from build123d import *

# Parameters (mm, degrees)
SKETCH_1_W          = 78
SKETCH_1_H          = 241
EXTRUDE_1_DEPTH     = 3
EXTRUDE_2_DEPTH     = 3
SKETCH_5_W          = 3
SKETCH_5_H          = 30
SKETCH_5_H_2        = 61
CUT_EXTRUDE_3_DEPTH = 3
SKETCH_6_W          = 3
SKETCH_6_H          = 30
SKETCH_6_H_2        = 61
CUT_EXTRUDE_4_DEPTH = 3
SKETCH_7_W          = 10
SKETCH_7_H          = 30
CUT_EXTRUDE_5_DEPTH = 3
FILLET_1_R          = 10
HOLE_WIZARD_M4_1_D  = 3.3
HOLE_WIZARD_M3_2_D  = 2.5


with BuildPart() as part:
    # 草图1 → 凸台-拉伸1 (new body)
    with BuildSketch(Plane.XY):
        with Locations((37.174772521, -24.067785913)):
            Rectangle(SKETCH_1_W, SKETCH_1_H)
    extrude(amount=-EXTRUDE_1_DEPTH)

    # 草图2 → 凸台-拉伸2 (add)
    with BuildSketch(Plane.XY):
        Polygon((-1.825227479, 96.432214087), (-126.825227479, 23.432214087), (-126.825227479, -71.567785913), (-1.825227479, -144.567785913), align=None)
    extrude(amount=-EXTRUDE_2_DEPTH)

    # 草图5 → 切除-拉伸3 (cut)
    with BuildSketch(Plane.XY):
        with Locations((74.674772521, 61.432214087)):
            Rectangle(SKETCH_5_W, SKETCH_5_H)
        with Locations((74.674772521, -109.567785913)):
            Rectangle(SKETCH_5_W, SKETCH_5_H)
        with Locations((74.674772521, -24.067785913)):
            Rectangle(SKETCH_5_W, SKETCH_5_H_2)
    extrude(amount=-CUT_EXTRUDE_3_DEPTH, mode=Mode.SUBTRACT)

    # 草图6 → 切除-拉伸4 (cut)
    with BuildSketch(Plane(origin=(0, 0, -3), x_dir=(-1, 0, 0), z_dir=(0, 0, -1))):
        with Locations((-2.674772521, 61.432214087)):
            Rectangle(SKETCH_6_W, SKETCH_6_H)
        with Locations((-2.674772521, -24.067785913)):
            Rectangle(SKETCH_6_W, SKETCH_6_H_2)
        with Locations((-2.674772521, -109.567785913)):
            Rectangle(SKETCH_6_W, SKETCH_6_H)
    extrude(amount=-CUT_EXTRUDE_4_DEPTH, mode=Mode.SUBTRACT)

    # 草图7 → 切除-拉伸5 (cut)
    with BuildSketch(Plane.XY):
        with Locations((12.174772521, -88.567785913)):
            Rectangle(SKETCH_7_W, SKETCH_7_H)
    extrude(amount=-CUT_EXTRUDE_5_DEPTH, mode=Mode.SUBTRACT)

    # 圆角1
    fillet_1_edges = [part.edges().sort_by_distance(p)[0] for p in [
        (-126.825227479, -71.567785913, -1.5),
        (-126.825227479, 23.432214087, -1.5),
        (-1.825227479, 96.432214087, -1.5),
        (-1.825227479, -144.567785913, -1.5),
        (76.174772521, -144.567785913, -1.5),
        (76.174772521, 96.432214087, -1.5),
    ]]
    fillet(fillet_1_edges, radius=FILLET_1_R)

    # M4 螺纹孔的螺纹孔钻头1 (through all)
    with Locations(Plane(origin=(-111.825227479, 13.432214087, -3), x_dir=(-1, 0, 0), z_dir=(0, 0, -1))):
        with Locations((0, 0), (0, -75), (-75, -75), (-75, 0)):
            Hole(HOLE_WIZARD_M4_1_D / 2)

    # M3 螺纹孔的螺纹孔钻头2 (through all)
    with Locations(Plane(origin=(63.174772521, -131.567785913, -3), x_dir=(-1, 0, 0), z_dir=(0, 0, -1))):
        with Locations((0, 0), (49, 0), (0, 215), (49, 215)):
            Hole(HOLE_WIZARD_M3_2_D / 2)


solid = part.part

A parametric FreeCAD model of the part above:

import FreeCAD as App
import Part
import Sketcher

V = App.Vector
Q = App.Units.Quantity


def edges_at(feature, points):
    """Names of the edges that pass closest to the given points."""
    edges = feature.Shape.Edges
    near = lambda p: min(range(len(edges)), key=lambda i: edges[i].distToShape(Part.Vertex(*p))[0])
    return sorted({f"Edge{near(p) + 1}" for p in points})


def add_polygon(sketch, points):
    """Adds a closed chain of lines whose ends are joined by coincident constraints."""
    first, n = sketch.GeometryCount, len(points)
    for a, b in zip(points, points[1:] + points[:1]):
        sketch.addGeometry(Part.LineSegment(App.Vector(*a, 0), App.Vector(*b, 0)), False)
    for i in range(n):
        sketch.addConstraint(Sketcher.Constraint("Coincident", first + i, 2, first + (i + 1) % n, 1))

doc = App.newDocument("Part")
body = doc.addObject("PartDesign::Body", "Body")

# Sketch on XY plane
sketch1 = body.newObject("Sketcher::SketchObject", "Sketch")
sketch1.AttachmentSupport = (doc.getObject("XY_Plane"), [""])
sketch1.MapMode = "FlatFace"
add_polygon(sketch1, [(-2, 96), (-2, -145), (76, -145), (76, 96)])  # lines 0-3
sketch1.addConstraint([
    Sketcher.Constraint("Vertical", 0),
    Sketcher.Constraint("Horizontal", 1),
    Sketcher.Constraint("Vertical", 2),
    Sketcher.Constraint("Horizontal", 3),
    Sketcher.Constraint("DistanceX", 1, 1, 1, 2, Q("78 mm")),
    Sketcher.Constraint("DistanceY", 0, 2, 0, 1, Q("241 mm")),
    Sketcher.Constraint("DistanceX", 0, 2, -1, 1, Q("1.825227 mm")),
    Sketcher.Constraint("DistanceY", 0, 2, -1, 1, Q("144.567786 mm")),
])
pad1 = body.newObject("PartDesign::Pad", "Pad")
pad1.Profile = sketch1
pad1.Length = 3
pad1.Reversed = True

# Sketch on XY plane
sketch2 = body.newObject("Sketcher::SketchObject", "Sketch001")
sketch2.AttachmentSupport = (doc.getObject("XY_Plane"), [""])
sketch2.MapMode = "FlatFace"
add_polygon(sketch2, [(-2, 96), (-127, 23), (-127, -72), (-2, -145)])  # lines 0-3
sketch2.addConstraint([
    Sketcher.Constraint("Vertical", 1),
    Sketcher.Constraint("Vertical", 3),
    Sketcher.Constraint("Equal", 0, 2),
    Sketcher.Constraint("DistanceY", 1, 2, 1, 1, Q("95 mm")),
    Sketcher.Constraint("DistanceY", 3, 1, 3, 2, Q("241 mm")),
    Sketcher.Constraint("DistanceX", 1, 2, 2, 2, Q("125 mm")),
    Sketcher.Constraint("DistanceX", 0, 2, -1, 1, Q("126.825227 mm")),
    Sketcher.Constraint("DistanceY", -1, 1, 0, 2, Q("23.432214 mm")),
])
pad2 = body.newObject("PartDesign::Pad", "Pad001")
pad2.Profile = sketch2
pad2.Length = 3
pad2.Reversed = True

# Sketch on XY plane
sketch3 = body.newObject("Sketcher::SketchObject", "Sketch002")
sketch3.AttachmentSupport = (doc.getObject("XY_Plane"), [""])
sketch3.MapMode = "FlatFace"
add_polygon(sketch3, [(73.2, 76.4), (73.2, 46.4), (76.2, 46.4), (76.2, 76.4)])  # lines 0-3
add_polygon(sketch3, [(73.2, -94.6), (73.2, -124.6), (76.2, -124.6), (76.2, -94.6)])  # lines 4-7
add_polygon(sketch3, [(73.2, 6.4), (73.2, -54.6), (76.2, -54.6), (76.2, 6.4)])  # lines 8-11
sketch3.addConstraint([
    Sketcher.Constraint("Vertical", 0),
    Sketcher.Constraint("Horizontal", 1),
    Sketcher.Constraint("Vertical", 2),
    Sketcher.Constraint("Horizontal", 3),
    Sketcher.Constraint("Vertical", 4),
    Sketcher.Constraint("Horizontal", 5),
    Sketcher.Constraint("Vertical", 6),
    Sketcher.Constraint("Horizontal", 7),
    Sketcher.Constraint("Vertical", 8),
    Sketcher.Constraint("Horizontal", 9),
    Sketcher.Constraint("Vertical", 10),
    Sketcher.Constraint("Horizontal", 11),
    Sketcher.Constraint("Vertical", 3, 2, 4, 2),
    Sketcher.Constraint("Vertical", 2, 2, 5, 2),
    Sketcher.Constraint("Vertical", 7, 2, 8, 2),
    Sketcher.Constraint("Vertical", 6, 2, 9, 2),
    Sketcher.Constraint("Equal", 2, 4),
    Sketcher.Constraint("DistanceX", 1, 1, 1, 2, Q("3 mm")),
    Sketcher.Constraint("DistanceY", 0, 2, 0, 1, Q("30 mm")),
    Sketcher.Constraint("DistanceY", 8, 2, 8, 1, Q("61 mm")),
    Sketcher.Constraint("DistanceY", 4, 2, 0, 2, Q("171 mm")),
    Sketcher.Constraint("DistanceY", 7, 2, 8, 2, Q("40 mm")),
    Sketcher.Constraint("DistanceX", -1, 1, 0, 2, Q("73.174773 mm")),
    Sketcher.Constraint("DistanceY", -1, 1, 0, 2, Q("46.432214 mm")),
])
pocket1 = body.newObject("PartDesign::Pocket", "Pocket")
pocket1.Profile = sketch3
pocket1.Length = 3

# Sketch on XY plane
sketch4 = body.newObject("Sketcher::SketchObject", "Sketch003")
sketch4.AttachmentSupport = (doc.getObject("XY_Plane"), [""])
sketch4.MapMode = "FlatFace"
sketch4.AttachmentOffset = App.Placement(V(0, 0, -3), App.Rotation())
add_polygon(sketch4, [(4.2, 76.4), (4.2, 46.4), (1.2, 46.4), (1.2, 76.4)])  # lines 0-3
add_polygon(sketch4, [(4.2, 6.4), (4.2, -54.6), (1.2, -54.6), (1.2, 6.4)])  # lines 4-7
add_polygon(sketch4, [(4.2, -94.6), (4.2, -124.6), (1.2, -124.6), (1.2, -94.6)])  # lines 8-11
sketch4.addConstraint([
    Sketcher.Constraint("Vertical", 0),
    Sketcher.Constraint("Horizontal", 1),
    Sketcher.Constraint("Vertical", 2),
    Sketcher.Constraint("Horizontal", 3),
    Sketcher.Constraint("Vertical", 4),
    Sketcher.Constraint("Horizontal", 5),
    Sketcher.Constraint("Vertical", 6),
    Sketcher.Constraint("Horizontal", 7),
    Sketcher.Constraint("Vertical", 8),
    Sketcher.Constraint("Horizontal", 9),
    Sketcher.Constraint("Vertical", 10),
    Sketcher.Constraint("Horizontal", 11),
    Sketcher.Constraint("Vertical", 3, 2, 4, 2),
    Sketcher.Constraint("Vertical", 2, 2, 5, 2),
    Sketcher.Constraint("Vertical", 7, 2, 8, 2),
    Sketcher.Constraint("Vertical", 6, 2, 9, 2),
    Sketcher.Constraint("Equal", 2, 8),
    Sketcher.Constraint("DistanceX", 1, 2, 1, 1, Q("3 mm")),
    Sketcher.Constraint("DistanceY", 0, 2, 0, 1, Q("30 mm")),
    Sketcher.Constraint("DistanceY", 4, 2, 4, 1, Q("61 mm")),
    Sketcher.Constraint("DistanceY", 4, 2, 0, 2, Q("101 mm")),
    Sketcher.Constraint("DistanceY", 8, 2, 4, 2, Q("70 mm")),
    Sketcher.Constraint("DistanceX", -1, 1, 0, 2, Q("4.174773 mm")),
    Sketcher.Constraint("DistanceY", -1, 1, 0, 2, Q("46.432214 mm")),
])
pocket2 = body.newObject("PartDesign::Pocket", "Pocket001")
pocket2.Profile = sketch4
pocket2.Length = 3
pocket2.Reversed = True

# Sketch on XY plane
sketch5 = body.newObject("Sketcher::SketchObject", "Sketch004")
sketch5.AttachmentSupport = (doc.getObject("XY_Plane"), [""])
sketch5.MapMode = "FlatFace"
add_polygon(sketch5, [(7, -74), (7, -104), (17, -104), (17, -74)])  # lines 0-3
sketch5.addConstraint([
    Sketcher.Constraint("Vertical", 0),
    Sketcher.Constraint("Horizontal", 1),
    Sketcher.Constraint("Vertical", 2),
    Sketcher.Constraint("Horizontal", 3),
    Sketcher.Constraint("DistanceX", 1, 1, 1, 2, Q("10 mm")),
    Sketcher.Constraint("DistanceY", 0, 2, 0, 1, Q("30 mm")),
    Sketcher.Constraint("DistanceX", -1, 1, 0, 2, Q("7.174773 mm")),
    Sketcher.Constraint("DistanceY", 0, 2, -1, 1, Q("103.567786 mm")),
])
pocket3 = body.newObject("PartDesign::Pocket", "Pocket002")
pocket3.Profile = sketch5
pocket3.Length = 3
doc.recompute()

fillet = body.newObject("PartDesign::Fillet", "Fillet")
fillet.Base = (pocket3, edges_at(pocket3, [
    (-126.825, -71.568, -1.5),
    (-126.825, 23.432, -1.5),
    (-1.825, 96.432, -1.5),
    (-1.825, -144.568, -1.5),
    (76.175, -144.568, -1.5),
    (76.175, 96.432, -1.5),
]))
fillet.Radius = 10

# Sketch on XY plane
sketch6 = body.newObject("Sketcher::SketchObject", "Sketch005")
sketch6.AttachmentSupport = (doc.getObject("XY_Plane"), [""])
sketch6.MapMode = "FlatFace"
sketch6.AttachmentOffset = App.Placement(V(0, 0, -3), App.Rotation())
sketch6.addGeometry([
    Part.Circle(V(-111.8, 13.4, 0), V(0, 0, 1), 1.6),
    Part.Circle(V(-111.8, -61.6, 0), V(0, 0, 1), 1.6),
    Part.Circle(V(-36.8, -61.6, 0), V(0, 0, 1), 1.6),
    Part.Circle(V(-36.8, 13.4, 0), V(0, 0, 1), 1.6),
], False)
sketch6.addConstraint([
    Sketcher.Constraint("Equal", 0, 1),
    Sketcher.Constraint("Equal", 1, 2),
    Sketcher.Constraint("Equal", 2, 3),
    Sketcher.Constraint("Horizontal", 1, 3, 2, 3),
    Sketcher.Constraint("Horizontal", 0, 3, 3, 3),
    Sketcher.Constraint("Vertical", 0, 3, 1, 3),
    Sketcher.Constraint("Vertical", 2, 3, 3, 3),
    Sketcher.Constraint("Diameter", 0, Q("3.3 mm")),
    Sketcher.Constraint("DistanceY", 1, 3, 0, 3, Q("75 mm")),
    Sketcher.Constraint("DistanceX", 1, 3, 2, 3, Q("75 mm")),
    Sketcher.Constraint("DistanceX", 0, 3, -1, 1, Q("111.825227 mm")),
    Sketcher.Constraint("DistanceY", -1, 1, 0, 3, Q("13.432214 mm")),
])
doc.recompute()
hole = body.newObject("PartDesign::Hole", "Hole")
hole.Profile = sketch6
hole.ThreadType = "None"
hole.Diameter = 3.3
hole.DepthType = "ThroughAll"
hole.Reversed = True

# Sketch on XY plane
sketch7 = body.newObject("Sketcher::SketchObject", "Sketch006")
sketch7.AttachmentSupport = (doc.getObject("XY_Plane"), [""])
sketch7.MapMode = "FlatFace"
sketch7.AttachmentOffset = App.Placement(V(0, 0, -3), App.Rotation())
sketch7.addGeometry([
    Part.Circle(V(63.2, -131.6, 0), V(0, 0, 1), 1.2),
    Part.Circle(V(14.2, -131.6, 0), V(0, 0, 1), 1.2),
    Part.Circle(V(63.2, 83.4, 0), V(0, 0, 1), 1.2),
    Part.Circle(V(14.2, 83.4, 0), V(0, 0, 1), 1.2),
], False)
sketch7.addConstraint([
    Sketcher.Constraint("Equal", 0, 1),
    Sketcher.Constraint("Equal", 1, 2),
    Sketcher.Constraint("Equal", 2, 3),
    Sketcher.Constraint("Horizontal", 0, 3, 1, 3),
    Sketcher.Constraint("Horizontal", 2, 3, 3, 3),
    Sketcher.Constraint("Vertical", 0, 3, 2, 3),
    Sketcher.Constraint("Vertical", 1, 3, 3, 3),
    Sketcher.Constraint("Diameter", 0, Q("2.5 mm")),
    Sketcher.Constraint("DistanceX", 1, 3, 0, 3, Q("49 mm")),
    Sketcher.Constraint("DistanceY", 0, 3, 2, 3, Q("215 mm")),
    Sketcher.Constraint("DistanceX", -1, 1, 0, 3, Q("63.174773 mm")),
    Sketcher.Constraint("DistanceY", 0, 3, -1, 1, Q("131.567786 mm")),
])
doc.recompute()
hole2 = body.newObject("PartDesign::Hole", "Hole001")
hole2.Profile = sketch7
hole2.ThreadType = "None"
hole2.Diameter = 2.5
hole2.DepthType = "ThroughAll"
hole2.Reversed = True

doc.recompute()
